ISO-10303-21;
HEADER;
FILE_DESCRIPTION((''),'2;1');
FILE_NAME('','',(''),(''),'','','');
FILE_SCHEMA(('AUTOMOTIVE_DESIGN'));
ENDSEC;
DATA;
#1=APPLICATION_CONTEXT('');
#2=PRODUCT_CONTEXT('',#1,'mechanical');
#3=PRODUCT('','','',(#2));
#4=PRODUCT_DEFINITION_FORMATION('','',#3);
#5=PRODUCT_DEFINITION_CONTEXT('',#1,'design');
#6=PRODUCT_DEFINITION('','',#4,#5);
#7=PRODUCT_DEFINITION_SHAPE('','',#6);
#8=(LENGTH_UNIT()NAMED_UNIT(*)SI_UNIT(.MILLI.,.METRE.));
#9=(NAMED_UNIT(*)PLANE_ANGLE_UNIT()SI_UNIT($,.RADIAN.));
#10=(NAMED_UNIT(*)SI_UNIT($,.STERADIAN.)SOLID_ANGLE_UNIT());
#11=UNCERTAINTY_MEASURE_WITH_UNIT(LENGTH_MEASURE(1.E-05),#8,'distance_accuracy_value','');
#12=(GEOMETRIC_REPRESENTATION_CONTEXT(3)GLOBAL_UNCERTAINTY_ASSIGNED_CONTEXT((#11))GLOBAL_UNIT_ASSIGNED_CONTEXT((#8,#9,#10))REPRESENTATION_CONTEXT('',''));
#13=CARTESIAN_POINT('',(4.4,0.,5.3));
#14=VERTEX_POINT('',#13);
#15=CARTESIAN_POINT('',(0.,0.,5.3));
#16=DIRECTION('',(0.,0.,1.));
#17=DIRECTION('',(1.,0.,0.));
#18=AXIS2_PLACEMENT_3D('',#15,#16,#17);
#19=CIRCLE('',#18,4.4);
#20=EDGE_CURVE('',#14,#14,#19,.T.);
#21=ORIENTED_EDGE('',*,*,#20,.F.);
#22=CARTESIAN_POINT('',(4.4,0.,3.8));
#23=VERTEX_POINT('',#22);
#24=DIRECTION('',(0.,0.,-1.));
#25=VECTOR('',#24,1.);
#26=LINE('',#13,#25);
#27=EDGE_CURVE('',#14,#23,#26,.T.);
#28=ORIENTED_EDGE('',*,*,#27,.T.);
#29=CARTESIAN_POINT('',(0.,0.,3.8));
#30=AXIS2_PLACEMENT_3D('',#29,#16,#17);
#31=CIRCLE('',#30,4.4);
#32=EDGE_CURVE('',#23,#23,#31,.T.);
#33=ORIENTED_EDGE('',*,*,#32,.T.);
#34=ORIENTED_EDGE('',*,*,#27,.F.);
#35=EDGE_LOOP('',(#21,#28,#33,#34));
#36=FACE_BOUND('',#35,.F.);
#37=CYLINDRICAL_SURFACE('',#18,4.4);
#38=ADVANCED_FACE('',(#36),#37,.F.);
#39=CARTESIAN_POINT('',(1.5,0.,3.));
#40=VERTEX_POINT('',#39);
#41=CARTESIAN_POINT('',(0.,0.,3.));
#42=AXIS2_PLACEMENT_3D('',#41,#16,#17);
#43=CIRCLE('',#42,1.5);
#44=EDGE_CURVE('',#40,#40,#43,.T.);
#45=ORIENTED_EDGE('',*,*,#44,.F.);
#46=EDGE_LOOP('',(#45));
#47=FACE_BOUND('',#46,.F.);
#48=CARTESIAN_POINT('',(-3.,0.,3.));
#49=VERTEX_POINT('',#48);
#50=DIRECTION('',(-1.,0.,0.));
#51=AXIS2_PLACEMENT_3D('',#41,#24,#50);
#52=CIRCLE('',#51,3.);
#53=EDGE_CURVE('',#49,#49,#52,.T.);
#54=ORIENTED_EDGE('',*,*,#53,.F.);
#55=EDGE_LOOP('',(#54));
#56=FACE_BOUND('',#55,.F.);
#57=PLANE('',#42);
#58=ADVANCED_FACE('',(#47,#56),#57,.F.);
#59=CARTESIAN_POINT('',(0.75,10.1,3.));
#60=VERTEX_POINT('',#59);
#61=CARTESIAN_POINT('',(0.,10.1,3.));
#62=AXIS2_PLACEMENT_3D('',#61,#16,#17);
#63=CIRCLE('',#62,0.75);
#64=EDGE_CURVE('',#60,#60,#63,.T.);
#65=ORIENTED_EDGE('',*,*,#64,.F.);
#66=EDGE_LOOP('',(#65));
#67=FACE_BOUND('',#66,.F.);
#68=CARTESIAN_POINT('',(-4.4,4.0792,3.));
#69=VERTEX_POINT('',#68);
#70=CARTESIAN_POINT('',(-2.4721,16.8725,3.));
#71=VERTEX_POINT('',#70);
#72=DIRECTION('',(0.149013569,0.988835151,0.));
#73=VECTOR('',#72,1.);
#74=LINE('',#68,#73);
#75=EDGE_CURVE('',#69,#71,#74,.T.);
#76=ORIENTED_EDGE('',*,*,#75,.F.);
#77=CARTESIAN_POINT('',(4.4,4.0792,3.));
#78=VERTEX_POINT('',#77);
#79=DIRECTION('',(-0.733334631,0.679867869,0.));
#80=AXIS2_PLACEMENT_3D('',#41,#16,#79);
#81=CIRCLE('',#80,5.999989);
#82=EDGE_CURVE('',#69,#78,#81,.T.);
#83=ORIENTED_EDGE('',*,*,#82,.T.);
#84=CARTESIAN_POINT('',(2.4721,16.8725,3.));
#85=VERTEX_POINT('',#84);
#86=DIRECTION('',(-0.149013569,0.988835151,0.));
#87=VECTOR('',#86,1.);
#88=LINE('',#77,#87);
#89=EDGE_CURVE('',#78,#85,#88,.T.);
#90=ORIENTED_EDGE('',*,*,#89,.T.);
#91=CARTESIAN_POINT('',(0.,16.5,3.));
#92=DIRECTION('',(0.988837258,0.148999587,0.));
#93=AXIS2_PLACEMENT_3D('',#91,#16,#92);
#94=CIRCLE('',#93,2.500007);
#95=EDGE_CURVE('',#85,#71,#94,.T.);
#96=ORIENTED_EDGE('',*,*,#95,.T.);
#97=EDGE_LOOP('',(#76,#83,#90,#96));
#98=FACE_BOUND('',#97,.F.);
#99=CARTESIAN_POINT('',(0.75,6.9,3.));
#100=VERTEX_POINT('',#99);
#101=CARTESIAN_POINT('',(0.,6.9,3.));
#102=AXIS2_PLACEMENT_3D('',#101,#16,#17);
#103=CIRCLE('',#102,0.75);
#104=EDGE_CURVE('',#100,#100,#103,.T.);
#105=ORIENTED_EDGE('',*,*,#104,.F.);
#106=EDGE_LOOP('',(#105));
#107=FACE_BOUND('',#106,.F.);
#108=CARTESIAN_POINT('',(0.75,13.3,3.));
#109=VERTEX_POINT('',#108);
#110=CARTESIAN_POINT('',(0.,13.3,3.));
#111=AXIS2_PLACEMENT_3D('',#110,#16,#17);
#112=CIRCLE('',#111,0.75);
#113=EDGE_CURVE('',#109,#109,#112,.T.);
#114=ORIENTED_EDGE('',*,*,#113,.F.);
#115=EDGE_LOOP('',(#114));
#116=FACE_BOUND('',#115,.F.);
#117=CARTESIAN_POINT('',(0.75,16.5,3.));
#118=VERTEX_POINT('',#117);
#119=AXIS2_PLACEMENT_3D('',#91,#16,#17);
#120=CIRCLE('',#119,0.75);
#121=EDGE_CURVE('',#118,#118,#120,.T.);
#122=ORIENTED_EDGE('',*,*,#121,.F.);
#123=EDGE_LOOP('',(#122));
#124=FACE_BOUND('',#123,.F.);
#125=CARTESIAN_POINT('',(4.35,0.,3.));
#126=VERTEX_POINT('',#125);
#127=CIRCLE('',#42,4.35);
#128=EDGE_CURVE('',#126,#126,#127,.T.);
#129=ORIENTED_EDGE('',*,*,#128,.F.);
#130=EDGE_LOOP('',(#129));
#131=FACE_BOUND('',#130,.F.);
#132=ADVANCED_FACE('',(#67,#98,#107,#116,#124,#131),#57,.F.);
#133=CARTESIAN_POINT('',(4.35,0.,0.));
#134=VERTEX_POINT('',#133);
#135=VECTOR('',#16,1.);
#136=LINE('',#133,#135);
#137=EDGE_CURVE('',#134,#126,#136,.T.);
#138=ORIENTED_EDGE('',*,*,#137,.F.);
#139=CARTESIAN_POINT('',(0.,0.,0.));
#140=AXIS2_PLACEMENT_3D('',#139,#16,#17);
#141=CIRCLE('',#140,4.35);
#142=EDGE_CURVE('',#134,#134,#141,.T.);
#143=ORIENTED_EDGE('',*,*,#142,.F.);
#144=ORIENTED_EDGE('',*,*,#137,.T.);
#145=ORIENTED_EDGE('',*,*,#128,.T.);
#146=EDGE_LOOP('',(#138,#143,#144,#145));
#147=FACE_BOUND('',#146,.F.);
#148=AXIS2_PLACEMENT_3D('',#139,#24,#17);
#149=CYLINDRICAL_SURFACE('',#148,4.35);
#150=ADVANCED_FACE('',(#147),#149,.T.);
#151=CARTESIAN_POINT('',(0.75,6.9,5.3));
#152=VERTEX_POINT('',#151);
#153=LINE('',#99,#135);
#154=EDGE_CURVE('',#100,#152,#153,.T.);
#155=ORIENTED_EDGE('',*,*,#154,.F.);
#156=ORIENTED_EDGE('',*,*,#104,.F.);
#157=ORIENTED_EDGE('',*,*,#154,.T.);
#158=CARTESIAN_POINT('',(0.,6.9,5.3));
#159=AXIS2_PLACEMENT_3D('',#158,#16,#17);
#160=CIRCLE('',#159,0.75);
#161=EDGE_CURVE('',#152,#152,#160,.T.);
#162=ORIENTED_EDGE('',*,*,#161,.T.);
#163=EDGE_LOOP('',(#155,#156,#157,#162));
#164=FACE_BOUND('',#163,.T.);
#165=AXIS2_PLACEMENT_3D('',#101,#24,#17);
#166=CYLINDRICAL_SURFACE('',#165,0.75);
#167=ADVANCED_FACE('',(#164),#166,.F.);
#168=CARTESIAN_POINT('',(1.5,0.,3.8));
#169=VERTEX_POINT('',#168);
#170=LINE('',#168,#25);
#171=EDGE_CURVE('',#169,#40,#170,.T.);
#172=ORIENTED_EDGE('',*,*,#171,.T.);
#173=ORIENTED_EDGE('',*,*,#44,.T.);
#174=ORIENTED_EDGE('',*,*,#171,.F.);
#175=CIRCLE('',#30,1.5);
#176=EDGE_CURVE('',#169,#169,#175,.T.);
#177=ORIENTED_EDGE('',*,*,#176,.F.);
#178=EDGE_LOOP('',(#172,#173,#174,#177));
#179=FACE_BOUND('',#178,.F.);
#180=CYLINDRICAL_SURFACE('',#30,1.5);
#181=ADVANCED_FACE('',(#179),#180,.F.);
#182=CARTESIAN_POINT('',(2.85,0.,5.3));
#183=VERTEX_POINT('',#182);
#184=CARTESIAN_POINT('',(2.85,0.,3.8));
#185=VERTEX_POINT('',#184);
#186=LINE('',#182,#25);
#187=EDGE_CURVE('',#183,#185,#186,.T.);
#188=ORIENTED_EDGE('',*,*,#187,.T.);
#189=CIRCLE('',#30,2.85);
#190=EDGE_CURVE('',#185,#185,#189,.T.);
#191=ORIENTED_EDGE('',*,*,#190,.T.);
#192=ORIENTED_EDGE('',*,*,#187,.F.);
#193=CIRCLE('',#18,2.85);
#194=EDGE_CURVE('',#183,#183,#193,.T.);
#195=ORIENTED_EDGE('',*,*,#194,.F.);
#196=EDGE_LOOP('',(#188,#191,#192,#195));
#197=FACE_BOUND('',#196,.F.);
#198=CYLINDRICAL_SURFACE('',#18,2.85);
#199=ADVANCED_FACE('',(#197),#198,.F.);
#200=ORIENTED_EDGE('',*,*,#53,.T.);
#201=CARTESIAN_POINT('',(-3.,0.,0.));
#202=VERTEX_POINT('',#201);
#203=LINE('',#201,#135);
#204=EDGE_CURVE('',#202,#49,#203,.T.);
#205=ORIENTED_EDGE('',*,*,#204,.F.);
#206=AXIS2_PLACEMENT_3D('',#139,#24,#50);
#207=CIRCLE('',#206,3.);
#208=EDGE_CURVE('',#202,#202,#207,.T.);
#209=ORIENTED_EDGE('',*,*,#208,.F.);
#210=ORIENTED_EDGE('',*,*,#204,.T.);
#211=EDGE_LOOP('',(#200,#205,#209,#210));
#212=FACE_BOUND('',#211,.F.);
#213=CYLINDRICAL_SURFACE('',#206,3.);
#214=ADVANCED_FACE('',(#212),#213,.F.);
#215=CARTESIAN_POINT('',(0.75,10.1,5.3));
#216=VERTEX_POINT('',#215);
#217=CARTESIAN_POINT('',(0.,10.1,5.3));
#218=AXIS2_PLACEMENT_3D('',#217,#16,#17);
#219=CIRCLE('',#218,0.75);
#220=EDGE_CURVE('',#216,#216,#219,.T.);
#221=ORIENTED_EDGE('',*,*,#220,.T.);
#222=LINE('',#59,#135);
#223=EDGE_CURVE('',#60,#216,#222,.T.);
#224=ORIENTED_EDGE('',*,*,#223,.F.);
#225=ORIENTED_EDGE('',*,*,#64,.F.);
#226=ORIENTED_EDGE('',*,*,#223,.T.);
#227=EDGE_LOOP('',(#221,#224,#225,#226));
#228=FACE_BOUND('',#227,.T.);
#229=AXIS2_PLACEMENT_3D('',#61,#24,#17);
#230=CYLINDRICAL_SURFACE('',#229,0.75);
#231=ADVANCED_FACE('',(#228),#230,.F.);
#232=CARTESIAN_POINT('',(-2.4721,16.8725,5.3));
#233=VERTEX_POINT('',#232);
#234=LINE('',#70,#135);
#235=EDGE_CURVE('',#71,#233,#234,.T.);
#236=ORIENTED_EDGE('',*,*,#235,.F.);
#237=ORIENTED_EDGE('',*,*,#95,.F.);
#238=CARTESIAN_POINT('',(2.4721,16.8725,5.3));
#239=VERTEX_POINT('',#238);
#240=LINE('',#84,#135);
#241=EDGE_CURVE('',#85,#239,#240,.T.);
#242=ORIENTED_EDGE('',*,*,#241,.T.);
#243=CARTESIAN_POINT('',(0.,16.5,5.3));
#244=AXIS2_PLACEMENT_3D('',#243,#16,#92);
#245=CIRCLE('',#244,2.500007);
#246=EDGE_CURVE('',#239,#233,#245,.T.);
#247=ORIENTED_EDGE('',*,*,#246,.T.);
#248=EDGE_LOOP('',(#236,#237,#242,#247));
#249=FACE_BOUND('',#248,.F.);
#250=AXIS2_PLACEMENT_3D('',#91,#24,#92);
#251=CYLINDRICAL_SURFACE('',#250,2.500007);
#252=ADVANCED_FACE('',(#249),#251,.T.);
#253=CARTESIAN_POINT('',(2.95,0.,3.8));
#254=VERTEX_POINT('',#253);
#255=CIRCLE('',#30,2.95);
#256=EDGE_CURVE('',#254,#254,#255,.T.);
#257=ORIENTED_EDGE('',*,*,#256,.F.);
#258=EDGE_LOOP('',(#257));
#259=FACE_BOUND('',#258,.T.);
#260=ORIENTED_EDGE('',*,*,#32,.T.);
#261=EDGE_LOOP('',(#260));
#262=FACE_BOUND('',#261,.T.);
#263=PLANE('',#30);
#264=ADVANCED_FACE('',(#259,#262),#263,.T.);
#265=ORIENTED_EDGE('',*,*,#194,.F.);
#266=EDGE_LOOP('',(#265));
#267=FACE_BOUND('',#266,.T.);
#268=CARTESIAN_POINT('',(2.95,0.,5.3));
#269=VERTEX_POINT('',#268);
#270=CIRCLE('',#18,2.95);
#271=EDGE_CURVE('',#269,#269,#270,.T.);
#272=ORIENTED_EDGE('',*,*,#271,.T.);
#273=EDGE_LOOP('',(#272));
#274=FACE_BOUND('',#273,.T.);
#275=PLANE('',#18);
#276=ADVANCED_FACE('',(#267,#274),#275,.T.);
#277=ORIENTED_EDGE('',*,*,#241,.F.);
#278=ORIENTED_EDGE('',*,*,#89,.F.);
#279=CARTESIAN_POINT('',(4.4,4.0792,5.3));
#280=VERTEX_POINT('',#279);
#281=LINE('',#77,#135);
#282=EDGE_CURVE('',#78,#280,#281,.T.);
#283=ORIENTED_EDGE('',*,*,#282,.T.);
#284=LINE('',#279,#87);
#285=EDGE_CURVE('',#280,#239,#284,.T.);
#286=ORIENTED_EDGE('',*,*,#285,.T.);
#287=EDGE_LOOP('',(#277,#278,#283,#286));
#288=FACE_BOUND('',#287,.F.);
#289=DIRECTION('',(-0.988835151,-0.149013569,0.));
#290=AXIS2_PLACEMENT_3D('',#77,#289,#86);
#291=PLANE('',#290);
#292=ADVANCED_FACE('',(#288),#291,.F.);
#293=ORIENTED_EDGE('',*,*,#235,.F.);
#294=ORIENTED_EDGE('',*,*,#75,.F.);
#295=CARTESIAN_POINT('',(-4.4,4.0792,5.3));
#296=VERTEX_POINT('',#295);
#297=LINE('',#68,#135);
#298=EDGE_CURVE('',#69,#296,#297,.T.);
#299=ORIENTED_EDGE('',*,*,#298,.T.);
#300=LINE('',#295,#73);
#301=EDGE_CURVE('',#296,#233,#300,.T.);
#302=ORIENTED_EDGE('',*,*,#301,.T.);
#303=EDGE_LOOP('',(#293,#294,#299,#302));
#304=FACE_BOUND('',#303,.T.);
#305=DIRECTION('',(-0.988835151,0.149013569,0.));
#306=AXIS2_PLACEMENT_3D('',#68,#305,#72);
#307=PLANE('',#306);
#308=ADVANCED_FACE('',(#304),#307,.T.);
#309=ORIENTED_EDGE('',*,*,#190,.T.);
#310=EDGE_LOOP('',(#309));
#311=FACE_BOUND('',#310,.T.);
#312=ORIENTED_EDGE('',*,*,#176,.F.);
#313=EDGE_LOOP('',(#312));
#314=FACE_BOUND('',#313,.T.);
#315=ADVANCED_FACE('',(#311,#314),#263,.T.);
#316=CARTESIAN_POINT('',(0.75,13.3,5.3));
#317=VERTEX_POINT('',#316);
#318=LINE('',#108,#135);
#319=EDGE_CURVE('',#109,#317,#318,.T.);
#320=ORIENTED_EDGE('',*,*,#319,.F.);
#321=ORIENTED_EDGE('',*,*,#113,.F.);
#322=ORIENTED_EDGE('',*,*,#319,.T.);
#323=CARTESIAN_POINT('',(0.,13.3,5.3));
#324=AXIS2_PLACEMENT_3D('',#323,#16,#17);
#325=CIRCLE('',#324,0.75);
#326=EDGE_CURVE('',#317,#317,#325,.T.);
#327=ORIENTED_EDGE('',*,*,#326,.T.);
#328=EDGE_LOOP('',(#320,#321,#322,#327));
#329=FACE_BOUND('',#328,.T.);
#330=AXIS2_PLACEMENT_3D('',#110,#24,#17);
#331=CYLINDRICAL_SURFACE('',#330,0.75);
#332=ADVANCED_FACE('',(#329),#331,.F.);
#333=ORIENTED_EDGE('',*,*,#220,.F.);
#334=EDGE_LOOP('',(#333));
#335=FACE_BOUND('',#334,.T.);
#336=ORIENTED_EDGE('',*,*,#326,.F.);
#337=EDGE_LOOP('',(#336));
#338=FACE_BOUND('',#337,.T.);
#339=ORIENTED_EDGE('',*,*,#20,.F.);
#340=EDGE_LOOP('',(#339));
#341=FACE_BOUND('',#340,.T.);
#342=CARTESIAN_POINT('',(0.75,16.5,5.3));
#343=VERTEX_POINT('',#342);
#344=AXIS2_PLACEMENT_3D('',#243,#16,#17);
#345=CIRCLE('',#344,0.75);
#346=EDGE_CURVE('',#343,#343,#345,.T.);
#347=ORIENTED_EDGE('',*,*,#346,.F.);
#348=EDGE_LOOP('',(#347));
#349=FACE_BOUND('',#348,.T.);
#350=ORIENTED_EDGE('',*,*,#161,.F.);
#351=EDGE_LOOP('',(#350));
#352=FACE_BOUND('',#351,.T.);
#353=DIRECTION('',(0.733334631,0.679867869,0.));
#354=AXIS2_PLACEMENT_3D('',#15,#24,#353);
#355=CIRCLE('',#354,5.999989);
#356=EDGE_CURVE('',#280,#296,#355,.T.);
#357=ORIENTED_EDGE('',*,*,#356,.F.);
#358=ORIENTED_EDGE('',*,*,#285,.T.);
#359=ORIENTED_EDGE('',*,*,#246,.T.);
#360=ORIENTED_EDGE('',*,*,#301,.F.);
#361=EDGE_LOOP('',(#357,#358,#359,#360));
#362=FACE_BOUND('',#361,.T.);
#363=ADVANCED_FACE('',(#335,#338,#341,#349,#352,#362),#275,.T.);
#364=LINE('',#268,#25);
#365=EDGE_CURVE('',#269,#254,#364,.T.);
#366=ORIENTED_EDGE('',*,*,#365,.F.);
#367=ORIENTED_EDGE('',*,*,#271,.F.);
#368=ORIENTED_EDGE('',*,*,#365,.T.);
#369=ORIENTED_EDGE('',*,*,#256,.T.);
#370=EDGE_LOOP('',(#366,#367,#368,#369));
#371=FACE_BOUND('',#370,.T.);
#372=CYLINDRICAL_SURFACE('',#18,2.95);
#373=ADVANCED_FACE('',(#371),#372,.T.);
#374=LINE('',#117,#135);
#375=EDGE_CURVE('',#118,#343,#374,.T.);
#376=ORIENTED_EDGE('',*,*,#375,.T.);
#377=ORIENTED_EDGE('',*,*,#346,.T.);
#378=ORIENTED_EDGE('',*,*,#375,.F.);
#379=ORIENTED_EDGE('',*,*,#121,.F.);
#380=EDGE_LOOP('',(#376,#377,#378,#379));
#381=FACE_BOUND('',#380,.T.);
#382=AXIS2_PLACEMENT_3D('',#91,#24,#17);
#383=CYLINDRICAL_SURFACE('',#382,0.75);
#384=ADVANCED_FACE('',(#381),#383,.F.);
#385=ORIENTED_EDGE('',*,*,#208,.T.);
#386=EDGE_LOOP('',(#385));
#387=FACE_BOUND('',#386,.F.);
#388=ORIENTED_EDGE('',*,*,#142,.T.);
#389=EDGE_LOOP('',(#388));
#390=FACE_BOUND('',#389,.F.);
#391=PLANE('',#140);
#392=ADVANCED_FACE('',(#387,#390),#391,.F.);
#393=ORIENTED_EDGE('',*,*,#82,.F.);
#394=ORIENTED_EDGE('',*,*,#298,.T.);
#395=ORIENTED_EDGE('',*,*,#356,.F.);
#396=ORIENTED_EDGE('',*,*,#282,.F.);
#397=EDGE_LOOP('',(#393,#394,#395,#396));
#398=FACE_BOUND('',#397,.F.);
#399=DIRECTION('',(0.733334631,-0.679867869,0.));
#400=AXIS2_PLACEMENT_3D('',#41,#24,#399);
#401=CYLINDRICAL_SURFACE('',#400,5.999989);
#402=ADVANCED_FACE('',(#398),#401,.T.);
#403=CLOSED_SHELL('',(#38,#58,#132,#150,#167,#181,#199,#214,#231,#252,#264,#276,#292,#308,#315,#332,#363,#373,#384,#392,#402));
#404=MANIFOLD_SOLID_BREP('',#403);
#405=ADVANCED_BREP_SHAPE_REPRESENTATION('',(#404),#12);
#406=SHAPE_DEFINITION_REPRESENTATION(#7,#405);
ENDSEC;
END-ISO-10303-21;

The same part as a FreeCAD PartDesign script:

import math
import FreeCAD as App
import Part
import Sketcher

V = App.Vector

doc = App.newDocument("Part")
params = doc.addObject("Spreadsheet::Sheet", "Params")
for row, (alias, value) in enumerate([
    ("sketch1_diameter", "8.7 mm"),
    ("pad1_length", "3 mm"),
    ("sketch2_diameter", "6 mm"),
    ("sketch3_diameter", "1.5 mm"),
    ("sketch3_radius", "6 mm"),
    ("sketch3_radius2", "2.5 mm"),
    ("pad2_length", "2.3 mm"),
    ("sketch4_diameter", "5.7 mm"),
    ("sketch4_diameter2", "8.8 mm"),
    ("sketch4_diameter3", "5.9 mm"),
    ("pocket2_length", "1.5 mm"),
    ("sketch5_diameter", "3 mm"),
], start=1):
    params.set(f"A{row}", alias)
    params.set(f"B{row}", "=" + value)
    params.setAlias(f"B{row}", alias)

body = doc.addObject("PartDesign::Body", "Body")

sketch1 = body.newObject("Sketcher::SketchObject", "Sketch")
sketch1.AttachmentSupport = (doc.getObject("XY_Plane"), [""])
sketch1.MapMode = "FlatFace"
sketch1.addGeometry(Part.Circle(V(0, 0, 0), V(0, 0, 1), 4.3), False)
sketch1.addConstraint([
    Sketcher.Constraint("Coincident", 0, 3, -1, 1),
    Sketcher.Constraint("Diameter", 0, 8.7),
])
sketch1.setExpression("Constraints[1]", "Params.sketch1_diameter")
pad1 = body.newObject("PartDesign::Pad", "Pad")
pad1.Profile = sketch1
pad1.setExpression("Length", "Params.pad1_length")

sketch2 = body.newObject("Sketcher::SketchObject", "Sketch001")
sketch2.AttachmentSupport = (doc.getObject("XY_Plane"), [""])
sketch2.MapMode = "FlatFace"
sketch2.addGeometry(Part.Circle(V(0, 0, 0), V(0, 0, 1), 3), False)
sketch2.addConstraint([
    Sketcher.Constraint("Coincident", 0, 3, -1, 1),
    Sketcher.Constraint("Diameter", 0, 6.0),
])
sketch2.setExpression("Constraints[1]", "Params.sketch2_diameter")
pocket1 = body.newObject("PartDesign::Pocket", "Pocket")
pocket1.Profile = sketch2
pocket1.Type = "UpToFirst"
pocket1.Reversed = True

sketch3 = body.newObject("Sketcher::SketchObject", "Sketch002")
sketch3.AttachmentSupport = (doc.getObject("XY_Plane"), [""])
sketch3.MapMode = "FlatFace"
sketch3.AttachmentOffset = App.Placement(V(0, 0, 3), App.Rotation())
sketch3.addGeometry([
    Part.LineSegment(V(4.4, 4.1, 0), V(2.5, 16.9, 0)),
    Part.ArcOfCircle(Part.Circle(V(0, 16.5, 0), V(0, 0, 1), 2.5), math.radians(9), math.radians(171)),
    Part.LineSegment(V(-2.5, 16.9, 0), V(-4.4, 4.1, 0)),
    Part.ArcOfCircle(Part.Circle(V(0, 0, 0), V(0, 0, 1), 6), math.radians(137), math.radians(403)),
    Part.Circle(V(0, 6.9, 0), V(0, 0, 1), 0.8),
    Part.Circle(V(0, 10.1, 0), V(0, 0, 1), 0.8),
    Part.Circle(V(0, 13.3, 0), V(0, 0, 1), 0.8),
    Part.Circle(V(0, 16.5, 0), V(0, 0, 1), 0.8),
], False)
sketch3.addConstraint([
    Sketcher.Constraint("Tangent", 0, 2, 1, 1),
    Sketcher.Constraint("Tangent", 1, 2, 2, 1),
    Sketcher.Constraint("Coincident", 2, 2, 3, 1),
    Sketcher.Constraint("Coincident", 3, 2, 0, 1),
    Sketcher.Constraint("Coincident", 3, 3, -1, 1),
    Sketcher.Constraint("Coincident", 7, 3, 1, 3),
    Sketcher.Constraint("Equal", 4, 5),
    Sketcher.Constraint("Equal", 5, 6),
    Sketcher.Constraint("Equal", 6, 7),
    Sketcher.Constraint("Symmetric", 0, 2, 1, 2, -2),
    Sketcher.Constraint("PointOnObject", 4, 3, -2),
    Sketcher.Constraint("PointOnObject", 5, 3, -2),
    Sketcher.Constraint("PointOnObject", 6, 3, -2),
    Sketcher.Constraint("Diameter", 4, 1.5),
    Sketcher.Constraint("Radius", 3, 6.0),
    Sketcher.Constraint("Radius", 1, 2.5),
    Sketcher.Constraint("DistanceX", 2, 2, 3, 2, 8.8),
    Sketcher.Constraint("DistanceY", -1, 1, 1, 3, 16.5),
    Sketcher.Constraint("DistanceY", -1, 1, 4, 3, 6.9),
    Sketcher.Constraint("DistanceY", -1, 1, 5, 3, 10.1),
    Sketcher.Constraint("DistanceY", -1, 1, 6, 3, 13.3),
])
sketch3.setExpression("Constraints[13]", "Params.sketch3_diameter")
sketch3.setExpression("Constraints[14]", "Params.sketch3_radius")
sketch3.setExpression("Constraints[15]", "Params.sketch3_radius2")
pad2 = body.newObject("PartDesign::Pad", "Pad001")
pad2.Profile = sketch3
pad2.setExpression("Length", "Params.pad2_length")

sketch4 = body.newObject("Sketcher::SketchObject", "Sketch003")
sketch4.AttachmentSupport = (doc.getObject("XY_Plane"), [""])
sketch4.MapMode = "FlatFace"
sketch4.AttachmentOffset = App.Placement(V(0, 0, 5.3), App.Rotation())
sketch4.addGeometry([
    Part.Circle(V(0, 0, 0), V(0, 0, 1), 2.9),
    Part.Circle(V(0, 0, 0), V(0, 0, 1), 4.4),
    Part.Circle(V(0, 0, 0), V(0, 0, 1), 3),
], False)
sketch4.addConstraint([
    Sketcher.Constraint("Coincident", 0, 3, -1, 1),
    Sketcher.Constraint("Coincident", 1, 3, -1, 1),
    Sketcher.Constraint("Coincident", 2, 3, -1, 1),
    Sketcher.Constraint("Diameter", 0, 5.7),
    Sketcher.Constraint("Diameter", 1, 8.8),
    Sketcher.Constraint("Diameter", 2, 5.9),
])
sketch4.setExpression("Constraints[3]", "Params.sketch4_diameter")
sketch4.setExpression("Constraints[4]", "Params.sketch4_diameter2")
sketch4.setExpression("Constraints[5]", "Params.sketch4_diameter3")
pocket2 = body.newObject("PartDesign::Pocket", "Pocket001")
pocket2.Profile = sketch4
pocket2.setExpression("Length", "Params.pocket2_length")

sketch5 = body.newObject("Sketcher::SketchObject", "Sketch004")
sketch5.AttachmentSupport = (doc.getObject("XY_Plane"), [""])
sketch5.MapMode = "FlatFace"
sketch5.AttachmentOffset = App.Placement(V(0, 0, 3.8), App.Rotation())
sketch5.addGeometry(Part.Circle(V(0, 0, 0), V(0, 0, 1), 1.5), False)
sketch5.addConstraint([
    Sketcher.Constraint("Coincident", 0, 3, -1, 1),
    Sketcher.Constraint("Diameter", 0, 3.0),
])
sketch5.setExpression("Constraints[1]", "Params.sketch5_diameter")
pocket3 = body.newObject("PartDesign::Pocket", "Pocket002")
pocket3.Profile = sketch5
pocket3.Type = "UpToFirst"

doc.recompute()
